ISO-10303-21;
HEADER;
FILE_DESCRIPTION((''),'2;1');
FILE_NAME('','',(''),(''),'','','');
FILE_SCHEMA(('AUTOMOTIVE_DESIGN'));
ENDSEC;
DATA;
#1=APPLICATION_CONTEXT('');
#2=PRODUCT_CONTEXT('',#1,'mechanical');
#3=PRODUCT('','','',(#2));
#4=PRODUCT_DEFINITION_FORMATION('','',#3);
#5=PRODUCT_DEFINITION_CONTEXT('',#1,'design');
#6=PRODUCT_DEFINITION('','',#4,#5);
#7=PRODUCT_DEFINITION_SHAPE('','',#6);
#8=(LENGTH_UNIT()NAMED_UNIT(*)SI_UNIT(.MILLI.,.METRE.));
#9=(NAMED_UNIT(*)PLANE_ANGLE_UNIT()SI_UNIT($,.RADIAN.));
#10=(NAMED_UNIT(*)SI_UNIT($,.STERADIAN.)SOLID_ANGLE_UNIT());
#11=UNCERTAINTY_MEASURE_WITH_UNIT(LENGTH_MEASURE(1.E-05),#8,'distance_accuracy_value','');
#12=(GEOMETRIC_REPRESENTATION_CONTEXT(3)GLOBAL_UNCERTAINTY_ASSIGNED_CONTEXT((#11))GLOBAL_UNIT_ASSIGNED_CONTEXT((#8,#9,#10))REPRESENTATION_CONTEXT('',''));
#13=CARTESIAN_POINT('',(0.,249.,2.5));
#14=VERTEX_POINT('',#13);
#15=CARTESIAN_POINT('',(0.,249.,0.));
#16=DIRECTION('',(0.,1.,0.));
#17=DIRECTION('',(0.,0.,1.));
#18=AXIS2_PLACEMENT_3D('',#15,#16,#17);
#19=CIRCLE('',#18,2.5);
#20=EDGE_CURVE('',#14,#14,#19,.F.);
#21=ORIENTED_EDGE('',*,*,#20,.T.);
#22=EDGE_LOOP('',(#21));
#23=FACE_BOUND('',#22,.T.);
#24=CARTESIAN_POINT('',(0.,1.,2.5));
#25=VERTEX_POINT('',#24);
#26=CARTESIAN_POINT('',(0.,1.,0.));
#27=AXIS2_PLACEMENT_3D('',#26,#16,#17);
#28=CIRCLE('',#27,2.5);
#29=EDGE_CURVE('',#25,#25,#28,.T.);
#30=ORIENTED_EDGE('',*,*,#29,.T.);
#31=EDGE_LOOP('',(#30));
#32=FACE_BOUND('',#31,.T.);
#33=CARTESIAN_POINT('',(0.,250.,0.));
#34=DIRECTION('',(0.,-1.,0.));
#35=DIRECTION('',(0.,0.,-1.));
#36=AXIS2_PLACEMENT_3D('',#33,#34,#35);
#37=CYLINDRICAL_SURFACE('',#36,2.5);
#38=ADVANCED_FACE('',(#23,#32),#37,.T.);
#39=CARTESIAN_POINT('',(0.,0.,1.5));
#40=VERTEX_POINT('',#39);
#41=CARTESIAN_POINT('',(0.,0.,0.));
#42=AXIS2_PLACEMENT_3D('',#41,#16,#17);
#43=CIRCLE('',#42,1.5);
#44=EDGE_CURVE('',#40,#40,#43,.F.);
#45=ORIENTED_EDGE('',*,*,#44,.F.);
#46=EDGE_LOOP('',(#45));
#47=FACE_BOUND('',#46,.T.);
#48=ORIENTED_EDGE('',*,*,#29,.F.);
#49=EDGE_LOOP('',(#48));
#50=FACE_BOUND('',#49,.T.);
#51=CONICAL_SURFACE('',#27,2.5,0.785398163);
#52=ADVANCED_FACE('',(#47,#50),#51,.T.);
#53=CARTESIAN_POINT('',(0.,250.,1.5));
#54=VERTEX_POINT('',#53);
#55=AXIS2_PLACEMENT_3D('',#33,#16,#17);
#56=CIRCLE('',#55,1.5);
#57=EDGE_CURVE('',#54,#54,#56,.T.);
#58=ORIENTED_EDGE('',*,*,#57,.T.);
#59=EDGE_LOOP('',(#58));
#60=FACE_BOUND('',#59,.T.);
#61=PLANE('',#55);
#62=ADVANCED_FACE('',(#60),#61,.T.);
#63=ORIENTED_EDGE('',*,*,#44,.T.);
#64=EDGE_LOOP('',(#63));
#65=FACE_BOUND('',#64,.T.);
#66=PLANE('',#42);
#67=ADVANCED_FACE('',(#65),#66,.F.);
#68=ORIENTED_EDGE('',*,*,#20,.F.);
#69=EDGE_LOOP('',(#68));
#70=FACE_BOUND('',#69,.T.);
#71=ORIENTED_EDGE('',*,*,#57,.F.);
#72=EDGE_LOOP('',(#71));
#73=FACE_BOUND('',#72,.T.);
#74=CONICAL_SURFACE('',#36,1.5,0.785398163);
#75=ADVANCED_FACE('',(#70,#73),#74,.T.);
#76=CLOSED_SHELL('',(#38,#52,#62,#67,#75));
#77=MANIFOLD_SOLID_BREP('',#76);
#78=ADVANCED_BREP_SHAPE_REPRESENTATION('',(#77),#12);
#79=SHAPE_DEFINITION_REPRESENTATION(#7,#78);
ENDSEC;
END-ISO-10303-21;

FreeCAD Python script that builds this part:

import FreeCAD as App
import Part
import Sketcher


def edges_at(feature, points):
    """Names of the edges that pass closest to the given points."""
    edges = feature.Shape.Edges
    near = lambda p: min(range(len(edges)), key=lambda i: edges[i].distToShape(Part.Vertex(*p))[0])
    return sorted({f"Edge{near(p) + 1}" for p in points})

doc = App.newDocument("Part")
body = doc.addObject("PartDesign::Body", "Body")

sketch1 = body.newObject("Sketcher::SketchObject", "Sketch")
sketch1.AttachmentSupport = (doc.getObject("XZ_Plane"), [""])
sketch1.MapMode = "FlatFace"
sketch1.addGeometry(Part.Circle(App.Vector(0, 0, 0), App.Vector(0, 0, 1), 2.5), False)
sketch1.addConstraint(Sketcher.Constraint("Coincident", 0, 3, -1, 1))
sketch1.addConstraint(Sketcher.Constraint("Diameter", 0, 5.0))
pad1 = body.newObject("PartDesign::Pad", "Pad")
pad1.Profile = sketch1
pad1.Length = 250
pad1.Reversed = True
doc.recompute()

chamfer = body.newObject("PartDesign::Chamfer", "Chamfer")
chamfer.Base = (pad1, edges_at(pad1, [(-2.5, 0, 0), (-2.5, 250, 0)]))
chamfer.Size = 1

doc.recompute()
